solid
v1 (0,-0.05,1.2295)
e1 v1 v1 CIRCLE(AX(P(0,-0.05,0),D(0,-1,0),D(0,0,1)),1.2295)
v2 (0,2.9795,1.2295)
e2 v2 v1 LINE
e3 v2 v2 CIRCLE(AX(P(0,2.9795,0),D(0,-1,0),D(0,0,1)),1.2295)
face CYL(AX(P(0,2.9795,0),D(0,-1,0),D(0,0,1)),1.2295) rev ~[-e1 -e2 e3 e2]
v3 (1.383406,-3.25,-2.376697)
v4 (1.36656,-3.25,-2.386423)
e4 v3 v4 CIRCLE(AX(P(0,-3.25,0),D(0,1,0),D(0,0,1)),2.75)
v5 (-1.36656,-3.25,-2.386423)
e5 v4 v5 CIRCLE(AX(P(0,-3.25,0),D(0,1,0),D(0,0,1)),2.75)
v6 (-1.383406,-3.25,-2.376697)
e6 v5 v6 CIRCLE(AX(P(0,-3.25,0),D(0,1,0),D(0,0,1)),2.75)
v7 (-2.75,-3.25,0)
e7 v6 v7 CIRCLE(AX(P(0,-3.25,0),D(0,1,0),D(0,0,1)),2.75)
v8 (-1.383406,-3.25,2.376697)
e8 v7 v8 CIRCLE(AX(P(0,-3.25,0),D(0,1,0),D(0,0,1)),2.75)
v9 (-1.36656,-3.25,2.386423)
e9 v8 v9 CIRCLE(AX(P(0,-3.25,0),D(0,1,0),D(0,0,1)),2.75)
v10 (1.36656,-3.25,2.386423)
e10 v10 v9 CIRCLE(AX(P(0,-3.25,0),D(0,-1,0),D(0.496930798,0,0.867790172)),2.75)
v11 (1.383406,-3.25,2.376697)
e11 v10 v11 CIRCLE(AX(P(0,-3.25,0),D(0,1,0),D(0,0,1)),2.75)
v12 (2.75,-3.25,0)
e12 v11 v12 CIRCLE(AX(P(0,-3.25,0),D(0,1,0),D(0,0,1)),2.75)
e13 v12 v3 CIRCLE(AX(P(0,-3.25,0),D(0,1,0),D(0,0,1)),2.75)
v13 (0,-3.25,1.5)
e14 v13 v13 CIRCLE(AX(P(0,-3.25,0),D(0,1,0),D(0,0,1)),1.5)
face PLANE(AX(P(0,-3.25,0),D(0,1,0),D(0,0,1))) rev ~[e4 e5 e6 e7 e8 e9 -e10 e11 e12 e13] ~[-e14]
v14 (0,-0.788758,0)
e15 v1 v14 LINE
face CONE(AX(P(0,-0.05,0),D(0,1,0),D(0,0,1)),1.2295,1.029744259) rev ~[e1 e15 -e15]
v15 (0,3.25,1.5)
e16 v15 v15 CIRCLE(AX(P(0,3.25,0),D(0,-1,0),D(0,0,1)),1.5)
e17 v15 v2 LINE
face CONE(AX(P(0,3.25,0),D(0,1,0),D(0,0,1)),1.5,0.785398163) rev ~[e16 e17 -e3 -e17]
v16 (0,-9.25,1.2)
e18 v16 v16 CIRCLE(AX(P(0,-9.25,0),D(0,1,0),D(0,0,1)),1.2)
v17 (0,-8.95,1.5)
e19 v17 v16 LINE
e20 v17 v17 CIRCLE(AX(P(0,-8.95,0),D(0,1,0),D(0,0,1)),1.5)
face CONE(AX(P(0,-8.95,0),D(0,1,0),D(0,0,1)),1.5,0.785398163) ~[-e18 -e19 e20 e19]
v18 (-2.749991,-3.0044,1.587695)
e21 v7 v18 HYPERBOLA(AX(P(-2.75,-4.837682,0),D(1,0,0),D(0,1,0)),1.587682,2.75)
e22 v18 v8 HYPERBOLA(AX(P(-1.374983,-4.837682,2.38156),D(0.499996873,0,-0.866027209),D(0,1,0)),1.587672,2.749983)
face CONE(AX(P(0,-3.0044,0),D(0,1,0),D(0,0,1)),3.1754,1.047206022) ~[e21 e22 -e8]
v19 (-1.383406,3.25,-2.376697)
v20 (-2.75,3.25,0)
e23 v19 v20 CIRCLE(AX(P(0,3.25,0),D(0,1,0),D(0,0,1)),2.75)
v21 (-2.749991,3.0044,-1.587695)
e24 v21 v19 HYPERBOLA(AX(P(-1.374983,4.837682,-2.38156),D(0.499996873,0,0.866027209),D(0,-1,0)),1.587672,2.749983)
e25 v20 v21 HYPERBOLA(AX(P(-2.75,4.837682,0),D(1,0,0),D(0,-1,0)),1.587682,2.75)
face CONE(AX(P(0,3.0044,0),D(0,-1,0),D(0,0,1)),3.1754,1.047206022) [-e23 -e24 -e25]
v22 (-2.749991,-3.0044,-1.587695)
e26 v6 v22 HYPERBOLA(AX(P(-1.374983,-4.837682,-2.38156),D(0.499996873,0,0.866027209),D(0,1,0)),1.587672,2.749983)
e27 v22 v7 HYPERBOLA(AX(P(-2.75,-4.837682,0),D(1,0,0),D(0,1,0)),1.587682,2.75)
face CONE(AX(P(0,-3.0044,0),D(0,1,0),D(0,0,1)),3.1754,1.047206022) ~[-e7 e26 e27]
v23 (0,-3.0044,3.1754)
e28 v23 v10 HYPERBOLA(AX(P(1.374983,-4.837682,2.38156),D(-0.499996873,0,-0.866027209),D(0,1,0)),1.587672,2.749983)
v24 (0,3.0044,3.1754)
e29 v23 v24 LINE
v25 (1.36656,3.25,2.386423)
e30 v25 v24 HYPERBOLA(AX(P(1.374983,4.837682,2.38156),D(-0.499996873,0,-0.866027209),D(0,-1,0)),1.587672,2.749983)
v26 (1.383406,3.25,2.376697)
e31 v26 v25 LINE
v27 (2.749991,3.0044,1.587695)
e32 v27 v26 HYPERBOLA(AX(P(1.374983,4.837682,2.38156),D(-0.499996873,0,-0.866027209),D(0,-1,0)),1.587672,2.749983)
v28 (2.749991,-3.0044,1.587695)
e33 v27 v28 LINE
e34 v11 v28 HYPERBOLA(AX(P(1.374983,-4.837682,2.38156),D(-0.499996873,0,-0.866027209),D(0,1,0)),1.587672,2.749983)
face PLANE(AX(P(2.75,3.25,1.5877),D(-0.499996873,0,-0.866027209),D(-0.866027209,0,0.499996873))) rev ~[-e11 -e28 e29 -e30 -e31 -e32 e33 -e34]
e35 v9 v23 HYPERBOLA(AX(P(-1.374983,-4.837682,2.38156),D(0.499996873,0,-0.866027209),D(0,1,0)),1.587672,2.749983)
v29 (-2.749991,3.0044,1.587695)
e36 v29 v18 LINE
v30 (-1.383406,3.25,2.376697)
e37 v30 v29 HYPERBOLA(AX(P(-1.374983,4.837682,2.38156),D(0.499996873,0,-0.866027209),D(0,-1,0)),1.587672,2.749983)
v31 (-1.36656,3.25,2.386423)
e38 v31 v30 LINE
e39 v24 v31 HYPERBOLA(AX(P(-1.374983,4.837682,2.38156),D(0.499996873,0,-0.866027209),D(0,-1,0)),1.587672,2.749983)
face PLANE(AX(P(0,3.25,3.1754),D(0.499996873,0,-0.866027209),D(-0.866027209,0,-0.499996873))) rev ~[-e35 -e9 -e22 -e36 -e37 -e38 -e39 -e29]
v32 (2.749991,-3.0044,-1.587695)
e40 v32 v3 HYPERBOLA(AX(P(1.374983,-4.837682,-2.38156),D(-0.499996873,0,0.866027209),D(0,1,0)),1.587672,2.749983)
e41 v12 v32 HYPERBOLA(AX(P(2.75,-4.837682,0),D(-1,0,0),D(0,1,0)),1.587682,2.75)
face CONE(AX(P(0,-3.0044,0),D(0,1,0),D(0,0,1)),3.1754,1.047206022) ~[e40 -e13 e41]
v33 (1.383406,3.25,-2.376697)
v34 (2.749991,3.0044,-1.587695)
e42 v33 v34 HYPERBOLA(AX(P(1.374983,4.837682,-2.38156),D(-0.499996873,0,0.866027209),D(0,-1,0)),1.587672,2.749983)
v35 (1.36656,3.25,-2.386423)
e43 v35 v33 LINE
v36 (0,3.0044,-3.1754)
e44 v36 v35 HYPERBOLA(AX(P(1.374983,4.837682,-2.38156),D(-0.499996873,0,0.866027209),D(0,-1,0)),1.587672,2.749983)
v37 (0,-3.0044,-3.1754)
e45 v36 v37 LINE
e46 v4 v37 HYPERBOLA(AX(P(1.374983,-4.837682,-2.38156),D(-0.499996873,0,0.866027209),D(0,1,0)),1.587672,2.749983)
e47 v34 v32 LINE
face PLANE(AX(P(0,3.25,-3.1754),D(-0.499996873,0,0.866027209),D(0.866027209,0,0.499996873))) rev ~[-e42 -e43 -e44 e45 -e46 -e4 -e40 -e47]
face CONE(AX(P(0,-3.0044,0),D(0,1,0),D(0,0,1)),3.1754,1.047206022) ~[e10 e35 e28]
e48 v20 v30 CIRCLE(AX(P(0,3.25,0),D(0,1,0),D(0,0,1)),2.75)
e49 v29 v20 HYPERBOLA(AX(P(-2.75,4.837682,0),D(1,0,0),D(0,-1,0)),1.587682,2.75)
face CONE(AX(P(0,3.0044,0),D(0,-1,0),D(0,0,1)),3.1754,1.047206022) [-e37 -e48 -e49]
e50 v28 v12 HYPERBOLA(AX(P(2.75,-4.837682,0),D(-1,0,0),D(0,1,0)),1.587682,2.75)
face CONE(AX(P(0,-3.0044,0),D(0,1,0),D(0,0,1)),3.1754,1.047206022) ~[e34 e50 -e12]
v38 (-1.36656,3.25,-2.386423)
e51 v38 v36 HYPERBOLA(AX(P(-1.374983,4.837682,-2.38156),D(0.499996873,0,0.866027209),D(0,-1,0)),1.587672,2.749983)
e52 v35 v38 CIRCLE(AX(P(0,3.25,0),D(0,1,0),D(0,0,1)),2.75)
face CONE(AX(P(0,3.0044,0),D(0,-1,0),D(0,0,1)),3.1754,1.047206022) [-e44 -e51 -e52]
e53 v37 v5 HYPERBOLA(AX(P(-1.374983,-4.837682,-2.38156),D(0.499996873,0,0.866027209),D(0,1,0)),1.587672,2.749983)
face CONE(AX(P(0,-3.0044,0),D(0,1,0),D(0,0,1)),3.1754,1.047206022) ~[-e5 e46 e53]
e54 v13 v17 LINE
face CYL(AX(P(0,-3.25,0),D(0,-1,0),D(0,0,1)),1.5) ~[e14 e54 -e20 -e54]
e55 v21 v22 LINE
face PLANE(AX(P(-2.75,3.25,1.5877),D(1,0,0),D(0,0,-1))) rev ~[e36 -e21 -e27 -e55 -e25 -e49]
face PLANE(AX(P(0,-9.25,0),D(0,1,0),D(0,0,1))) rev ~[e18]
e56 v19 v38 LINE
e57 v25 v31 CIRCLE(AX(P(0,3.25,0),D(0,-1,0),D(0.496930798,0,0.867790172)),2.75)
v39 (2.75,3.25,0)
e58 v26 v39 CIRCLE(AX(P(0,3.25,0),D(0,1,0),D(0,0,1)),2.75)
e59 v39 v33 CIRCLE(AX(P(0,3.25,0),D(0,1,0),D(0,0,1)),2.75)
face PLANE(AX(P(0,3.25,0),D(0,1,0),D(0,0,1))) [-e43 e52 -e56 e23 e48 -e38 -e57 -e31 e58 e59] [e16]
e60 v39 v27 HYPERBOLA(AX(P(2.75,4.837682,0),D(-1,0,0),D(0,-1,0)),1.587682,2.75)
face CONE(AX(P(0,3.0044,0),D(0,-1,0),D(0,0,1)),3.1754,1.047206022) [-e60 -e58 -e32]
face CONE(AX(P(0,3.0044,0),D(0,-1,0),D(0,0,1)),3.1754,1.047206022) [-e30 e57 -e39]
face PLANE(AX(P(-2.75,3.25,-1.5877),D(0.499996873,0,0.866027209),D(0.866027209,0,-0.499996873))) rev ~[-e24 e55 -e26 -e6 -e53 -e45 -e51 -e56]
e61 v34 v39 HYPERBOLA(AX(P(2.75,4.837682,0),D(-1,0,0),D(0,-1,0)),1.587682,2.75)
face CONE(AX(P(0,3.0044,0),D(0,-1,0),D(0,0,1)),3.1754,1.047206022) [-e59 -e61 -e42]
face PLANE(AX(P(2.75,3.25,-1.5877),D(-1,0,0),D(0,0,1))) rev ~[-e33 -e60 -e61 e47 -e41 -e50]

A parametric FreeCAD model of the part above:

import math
import FreeCAD as App
import Part
import Sketcher
Q = App.Units.Quantity


def add_polygon(sketch, points):
    """Adds a closed chain of lines whose ends are joined by coincident constraints."""
    first, n = sketch.GeometryCount, len(points)
    for a, b in zip(points, points[1:] + points[:1]):
        sketch.addGeometry(Part.LineSegment(App.Vector(*a, 0), App.Vector(*b, 0)), False)
    for i in range(n):
        sketch.addConstraint(Sketcher.Constraint("Coincident", first + i, 2, first + (i + 1) % n, 1))

doc = App.newDocument("Part")
body = doc.addObject("PartDesign::Body", "Body")

# Sketch on YZ plane
sketch1 = body.newObject("Sketcher::SketchObject", "Sketch")
sketch1.AttachmentSupport = (doc.getObject("YZ_Plane"), [""])
sketch1.MapMode = "FlatFace"
add_polygon(sketch1, [(-3.25, 2.75), (-3.25, 1.5), (-8.95, 1.5), (-9.25, 1.2), (-9.25, 0), (3.25, 0), (3.25, 2.75), (3, 3.18), (-3, 3.18)])  # lines 0-8
sketch1.addConstraint([
    Sketcher.Constraint("Vertical", 0),
    Sketcher.Constraint("Horizontal", 1),
    Sketcher.Constraint("Vertical", 3),
    Sketcher.Constraint("Horizontal", 4),
    Sketcher.Constraint("Vertical", 5),
    Sketcher.Constraint("Horizontal", 7),
    Sketcher.Constraint("Symmetric", 5, 2, 8, 2, -2),
    Sketcher.Constraint("PointOnObject", 3, 2, -1),
    Sketcher.Constraint("Equal", 6, 8),
    Sketcher.Constraint("DistanceX", 2, 2, 0, 2, Q("6 mm")),
    Sketcher.Constraint("DistanceY", 5, 1, 5, 2, Q("2.75 mm")),
    Sketcher.Constraint("DistanceX", 2, 2, 1, 2, Q("0.3 mm")),
    Sketcher.Constraint("DistanceY", 2, 2, 1, 2, Q("0.3 mm")),
    Sketcher.Constraint("DistanceX", 0, 2, 4, 2, Q("6.5 mm")),
    Sketcher.Constraint("Angle", 6, Q("119.9995 deg")),
    Sketcher.Constraint("DistanceY", 3, 2, 3, 1, Q("1.2 mm")),
    Sketcher.Constraint("DistanceY", -1, 1, 6, 2, Q("3.1754 mm")),
])
revolution = body.newObject("PartDesign::Revolution", "Revolution")
revolution.Profile = sketch1
revolution.ReferenceAxis = (sketch1, ["H_Axis"])
revolution.Angle = 360

# Sketch on XZ plane
sketch2 = body.newObject("Sketcher::SketchObject", "Sketch001")
sketch2.AttachmentSupport = (doc.getObject("XZ_Plane"), [""])
sketch2.MapMode = "FlatFace"
sketch2.AttachmentOffset = App.Placement(App.Vector(0, 0, -3.25), App.Rotation())
sketch2.addGeometry([
    Part.ArcOfCircle(Part.Circle(App.Vector(0, 0, 0), App.Vector(0, 0, 1), 3.2), math.radians(90), math.radians(150)),  # 0
    Part.LineSegment(App.Vector(0, 3.2, 0), App.Vector(-2.8, 1.6, 0)),  # 1
    Part.LineSegment(App.Vector(2.8, 1.6, 0), App.Vector(0, 3.2, 0)),  # 2
    Part.ArcOfCircle(Part.Circle(App.Vector(0, 0, 0), App.Vector(0, 0, 1), 3.2), math.radians(30), math.radians(90)),  # 3
    Part.ArcOfCircle(Part.Circle(App.Vector(0, 0, 0), App.Vector(0, 0, 1), 3.2), math.radians(150), math.radians(210)),  # 4
    Part.LineSegment(App.Vector(-2.8, -1.6, 0), App.Vector(-2.8, 1.6, 0)),  # 5
    Part.LineSegment(App.Vector(2.8, -1.6, 0), App.Vector(2.8, 1.6, 0)),  # 6
    Part.ArcOfCircle(Part.Circle(App.Vector(0, 0, 0), App.Vector(0, 0, 1), 3.2), math.radians(-30), math.radians(30)),  # 7
    Part.ArcOfCircle(Part.Circle(App.Vector(0, 0, 0), App.Vector(0, 0, 1), 3.2), math.radians(-150), math.radians(-90)),  # 8
    Part.LineSegment(App.Vector(0, -3.2, 0), App.Vector(-2.8, -1.6, 0)),  # 9
    Part.LineSegment(App.Vector(0, -3.2, 0), App.Vector(2.8, -1.6, 0)),  # 10
    Part.ArcOfCircle(Part.Circle(App.Vector(0, 0, 0), App.Vector(0, 0, 1), 3.2), math.radians(-90), math.radians(-30)),  # 11
], False)
sketch2.addConstraint([
    Sketcher.Constraint("Coincident", 0, 1, 1, 1),
    Sketcher.Constraint("Coincident", 1, 2, 0, 2),
    Sketcher.Constraint("Coincident", 2, 1, 3, 1),
    Sketcher.Constraint("Coincident", 3, 2, 2, 2),
    Sketcher.Constraint("Coincident", 4, 1, 5, 2),
    Sketcher.Constraint("Coincident", 5, 1, 4, 2),
    Sketcher.Constraint("Coincident", 6, 1, 7, 1),
    Sketcher.Constraint("Coincident", 7, 2, 6, 2),
    Sketcher.Constraint("Coincident", 8, 1, 9, 2),
    Sketcher.Constraint("Coincident", 9, 1, 8, 2),
    Sketcher.Constraint("Coincident", 10, 1, 11, 1),
    Sketcher.Constraint("Coincident", 11, 2, 10, 2),
    Sketcher.Constraint("Vertical", 5),
    Sketcher.Constraint("Vertical", 6),
    Sketcher.Constraint("Coincident", 0, 3, -1, 1),
    Sketcher.Constraint("Coincident", 3, 3, -1, 1),
    Sketcher.Constraint("Coincident", 4, 3, -1, 1),
    Sketcher.Constraint("Coincident", 7, 3, -1, 1),
    Sketcher.Constraint("Coincident", 8, 3, -1, 1),
    Sketcher.Constraint("Coincident", 11, 3, -1, 1),
    Sketcher.Constraint("Coincident", 3, 2, 0, 1),
    Sketcher.Constraint("Coincident", 4, 1, 1, 2),
    Sketcher.Constraint("Coincident", 7, 2, 2, 1),
    Sketcher.Constraint("Coincident", 8, 1, 5, 1),
    Sketcher.Constraint("Coincident", 10, 1, 9, 1),
    Sketcher.Constraint("PointOnObject", 0, 1, -2),
    Sketcher.Constraint("PointOnObject", 9, 1, -2),
    Sketcher.Constraint("Parallel", 2, 9),
    Sketcher.Constraint("Parallel", 1, 10),
    Sketcher.Constraint("Angle", 1, Q("-150.0002 deg")),
    Sketcher.Constraint("Radius", 0, Q("3.1754 mm")),
])
pocket1 = body.newObject("PartDesign::Pocket", "Pocket")
pocket1.Profile = sketch2
pocket1.Type = "ThroughAll"
pocket1.Reversed = True

# Sketch on XZ plane
sketch3 = body.newObject("Sketcher::SketchObject", "Sketch002")
sketch3.AttachmentSupport = (doc.getObject("XZ_Plane"), [""])
sketch3.MapMode = "FlatFace"
sketch3.AttachmentOffset = App.Placement(App.Vector(0, 0, -3.25), App.Rotation())
sketch3.addGeometry(Part.Circle(App.Vector(0, 0, 0), App.Vector(0, 0, 1), 1.2), False)
sketch3.addConstraint([
    Sketcher.Constraint("Coincident", 0, 3, -1, 1),
    Sketcher.Constraint("Diameter", 0, Q("2.459 mm")),
])
doc.recompute()
hole = body.newObject("PartDesign::Hole", "Hole")
hole.Profile = sketch3
hole.ThreadType = "None"
hole.Diameter = 2.459
hole.DepthType = "Dimension"
hole.Depth = 3.3
hole.DrillPoint = "Angled"
hole.DrillPointAngle = 118
hole.HoleCutType = "Countersink"
hole.HoleCutDiameter = 3
hole.HoleCutCountersinkAngle = 90
hole.Reversed = True

doc.recompute()
